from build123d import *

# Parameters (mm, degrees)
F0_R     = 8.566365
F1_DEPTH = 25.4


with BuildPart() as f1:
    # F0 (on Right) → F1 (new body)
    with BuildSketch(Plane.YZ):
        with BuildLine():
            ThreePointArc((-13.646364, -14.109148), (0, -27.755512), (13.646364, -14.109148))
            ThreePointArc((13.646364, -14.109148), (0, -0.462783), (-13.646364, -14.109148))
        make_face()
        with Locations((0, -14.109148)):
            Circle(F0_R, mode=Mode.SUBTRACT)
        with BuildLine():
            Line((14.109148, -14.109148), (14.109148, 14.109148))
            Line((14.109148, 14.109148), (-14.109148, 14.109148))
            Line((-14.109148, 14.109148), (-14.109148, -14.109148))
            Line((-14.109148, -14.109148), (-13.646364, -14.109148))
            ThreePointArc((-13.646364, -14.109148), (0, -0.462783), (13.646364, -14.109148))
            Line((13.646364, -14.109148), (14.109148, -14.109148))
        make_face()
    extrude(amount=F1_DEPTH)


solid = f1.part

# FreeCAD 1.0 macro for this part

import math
import FreeCAD as App
import Part
import Sketcher
Q = App.Units.Quantity

doc = App.newDocument("Part")
params = doc.addObject("Spreadsheet::Sheet", "Params")
for row, (alias, value) in enumerate([
    ("pad1_length", "1 in"),
], start=1):
    params.set(f"A{row}", alias)
    params.set(f"B{row}", "=" + value)
    params.setAlias(f"B{row}", alias)

body = doc.addObject("PartDesign::Body", "Body")

# Sketch on YZ plane
sketch1 = doc.addObject("Sketcher::SketchObject", "Sketch")
body.addObject(sketch1)
sketch1.AttachmentSupport = (doc.YZ_Plane, [""])
sketch1.MapMode = "FlatFace"
sketch1.addGeometry(Part.ArcOfCircle(Part.Circle(App.Vector(0, -14.109148, 0), App.Vector(0, 0, 1), 13.646364), math.radians(180), math.radians(360)), False)
sketch1.addGeometry(Part.LineSegment(App.Vector(13.646364, -14.109148, 0), App.Vector(14.109148, -14.109148, 0)), False)
sketch1.addGeometry(Part.LineSegment(App.Vector(14.109148, -14.109148, 0), App.Vector(14.109148, 14.109148, 0)), False)
sketch1.addGeometry(Part.LineSegment(App.Vector(14.109148, 14.109148, 0), App.Vector(-14.109148, 14.109148, 0)), False)
sketch1.addGeometry(Part.LineSegment(App.Vector(-14.109148, 14.109148, 0), App.Vector(-14.109148, -14.109148, 0)), False)
sketch1.addGeometry(Part.LineSegment(App.Vector(-14.109148, -14.109148, 0), App.Vector(-13.646364, -14.109148, 0)), False)
sketch1.addGeometry(Part.Circle(App.Vector(0, -14.109148, 0), App.Vector(0, 0, 1), 8.566365), False)
sketch1.addConstraint(Sketcher.Constraint("Coincident", 0, 2, 1, 1))
sketch1.addConstraint(Sketcher.Constraint("Coincident", 1, 2, 2, 1))
sketch1.addConstraint(Sketcher.Constraint("Coincident", 2, 2, 3, 1))
sketch1.addConstraint(Sketcher.Constraint("Coincident", 3, 2, 4, 1))
sketch1.addConstraint(Sketcher.Constraint("Coincident", 4, 2, 5, 1))
sketch1.addConstraint(Sketcher.Constraint("Coincident", 5, 2, 0, 1))
sketch1.addConstraint(Sketcher.Constraint("Horizontal", 1))
sketch1.addConstraint(Sketcher.Constraint("Vertical", 2))
sketch1.addConstraint(Sketcher.Constraint("Horizontal", 3))
sketch1.addConstraint(Sketcher.Constraint("Vertical", 4))
sketch1.addConstraint(Sketcher.Constraint("Horizontal", 5))
sketch1.addConstraint(Sketcher.Constraint("Coincident", 6, 3, 0, 3))
sketch1.addConstraint(Sketcher.Constraint("Symmetric", 1, 2, 3, 2, -1, 1))
sketch1.addConstraint(Sketcher.Constraint("Symmetric", 0, 2, 5, 2, -2))
sketch1.addConstraint(Sketcher.Constraint("Horizontal", 6, 3, 0, 2))
sketch1.addConstraint(Sketcher.Constraint("Equal", 3, 2))
sketch1.addConstraint(Sketcher.Constraint("Diameter", 6, Q("17.13273 mm")))
sketch1.addConstraint(Sketcher.Constraint("Radius", 0, Q("13.646364 mm")))
sketch1.addConstraint(Sketcher.Constraint("DistanceX", 1, 1, 1, 2, Q("0.462784 mm")))
pad1 = doc.addObject("PartDesign::Pad", "Pad")
body.addObject(pad1)
pad1.Profile = sketch1
pad1.setExpression("Length", "Params.pad1_length")

doc.recompute()
